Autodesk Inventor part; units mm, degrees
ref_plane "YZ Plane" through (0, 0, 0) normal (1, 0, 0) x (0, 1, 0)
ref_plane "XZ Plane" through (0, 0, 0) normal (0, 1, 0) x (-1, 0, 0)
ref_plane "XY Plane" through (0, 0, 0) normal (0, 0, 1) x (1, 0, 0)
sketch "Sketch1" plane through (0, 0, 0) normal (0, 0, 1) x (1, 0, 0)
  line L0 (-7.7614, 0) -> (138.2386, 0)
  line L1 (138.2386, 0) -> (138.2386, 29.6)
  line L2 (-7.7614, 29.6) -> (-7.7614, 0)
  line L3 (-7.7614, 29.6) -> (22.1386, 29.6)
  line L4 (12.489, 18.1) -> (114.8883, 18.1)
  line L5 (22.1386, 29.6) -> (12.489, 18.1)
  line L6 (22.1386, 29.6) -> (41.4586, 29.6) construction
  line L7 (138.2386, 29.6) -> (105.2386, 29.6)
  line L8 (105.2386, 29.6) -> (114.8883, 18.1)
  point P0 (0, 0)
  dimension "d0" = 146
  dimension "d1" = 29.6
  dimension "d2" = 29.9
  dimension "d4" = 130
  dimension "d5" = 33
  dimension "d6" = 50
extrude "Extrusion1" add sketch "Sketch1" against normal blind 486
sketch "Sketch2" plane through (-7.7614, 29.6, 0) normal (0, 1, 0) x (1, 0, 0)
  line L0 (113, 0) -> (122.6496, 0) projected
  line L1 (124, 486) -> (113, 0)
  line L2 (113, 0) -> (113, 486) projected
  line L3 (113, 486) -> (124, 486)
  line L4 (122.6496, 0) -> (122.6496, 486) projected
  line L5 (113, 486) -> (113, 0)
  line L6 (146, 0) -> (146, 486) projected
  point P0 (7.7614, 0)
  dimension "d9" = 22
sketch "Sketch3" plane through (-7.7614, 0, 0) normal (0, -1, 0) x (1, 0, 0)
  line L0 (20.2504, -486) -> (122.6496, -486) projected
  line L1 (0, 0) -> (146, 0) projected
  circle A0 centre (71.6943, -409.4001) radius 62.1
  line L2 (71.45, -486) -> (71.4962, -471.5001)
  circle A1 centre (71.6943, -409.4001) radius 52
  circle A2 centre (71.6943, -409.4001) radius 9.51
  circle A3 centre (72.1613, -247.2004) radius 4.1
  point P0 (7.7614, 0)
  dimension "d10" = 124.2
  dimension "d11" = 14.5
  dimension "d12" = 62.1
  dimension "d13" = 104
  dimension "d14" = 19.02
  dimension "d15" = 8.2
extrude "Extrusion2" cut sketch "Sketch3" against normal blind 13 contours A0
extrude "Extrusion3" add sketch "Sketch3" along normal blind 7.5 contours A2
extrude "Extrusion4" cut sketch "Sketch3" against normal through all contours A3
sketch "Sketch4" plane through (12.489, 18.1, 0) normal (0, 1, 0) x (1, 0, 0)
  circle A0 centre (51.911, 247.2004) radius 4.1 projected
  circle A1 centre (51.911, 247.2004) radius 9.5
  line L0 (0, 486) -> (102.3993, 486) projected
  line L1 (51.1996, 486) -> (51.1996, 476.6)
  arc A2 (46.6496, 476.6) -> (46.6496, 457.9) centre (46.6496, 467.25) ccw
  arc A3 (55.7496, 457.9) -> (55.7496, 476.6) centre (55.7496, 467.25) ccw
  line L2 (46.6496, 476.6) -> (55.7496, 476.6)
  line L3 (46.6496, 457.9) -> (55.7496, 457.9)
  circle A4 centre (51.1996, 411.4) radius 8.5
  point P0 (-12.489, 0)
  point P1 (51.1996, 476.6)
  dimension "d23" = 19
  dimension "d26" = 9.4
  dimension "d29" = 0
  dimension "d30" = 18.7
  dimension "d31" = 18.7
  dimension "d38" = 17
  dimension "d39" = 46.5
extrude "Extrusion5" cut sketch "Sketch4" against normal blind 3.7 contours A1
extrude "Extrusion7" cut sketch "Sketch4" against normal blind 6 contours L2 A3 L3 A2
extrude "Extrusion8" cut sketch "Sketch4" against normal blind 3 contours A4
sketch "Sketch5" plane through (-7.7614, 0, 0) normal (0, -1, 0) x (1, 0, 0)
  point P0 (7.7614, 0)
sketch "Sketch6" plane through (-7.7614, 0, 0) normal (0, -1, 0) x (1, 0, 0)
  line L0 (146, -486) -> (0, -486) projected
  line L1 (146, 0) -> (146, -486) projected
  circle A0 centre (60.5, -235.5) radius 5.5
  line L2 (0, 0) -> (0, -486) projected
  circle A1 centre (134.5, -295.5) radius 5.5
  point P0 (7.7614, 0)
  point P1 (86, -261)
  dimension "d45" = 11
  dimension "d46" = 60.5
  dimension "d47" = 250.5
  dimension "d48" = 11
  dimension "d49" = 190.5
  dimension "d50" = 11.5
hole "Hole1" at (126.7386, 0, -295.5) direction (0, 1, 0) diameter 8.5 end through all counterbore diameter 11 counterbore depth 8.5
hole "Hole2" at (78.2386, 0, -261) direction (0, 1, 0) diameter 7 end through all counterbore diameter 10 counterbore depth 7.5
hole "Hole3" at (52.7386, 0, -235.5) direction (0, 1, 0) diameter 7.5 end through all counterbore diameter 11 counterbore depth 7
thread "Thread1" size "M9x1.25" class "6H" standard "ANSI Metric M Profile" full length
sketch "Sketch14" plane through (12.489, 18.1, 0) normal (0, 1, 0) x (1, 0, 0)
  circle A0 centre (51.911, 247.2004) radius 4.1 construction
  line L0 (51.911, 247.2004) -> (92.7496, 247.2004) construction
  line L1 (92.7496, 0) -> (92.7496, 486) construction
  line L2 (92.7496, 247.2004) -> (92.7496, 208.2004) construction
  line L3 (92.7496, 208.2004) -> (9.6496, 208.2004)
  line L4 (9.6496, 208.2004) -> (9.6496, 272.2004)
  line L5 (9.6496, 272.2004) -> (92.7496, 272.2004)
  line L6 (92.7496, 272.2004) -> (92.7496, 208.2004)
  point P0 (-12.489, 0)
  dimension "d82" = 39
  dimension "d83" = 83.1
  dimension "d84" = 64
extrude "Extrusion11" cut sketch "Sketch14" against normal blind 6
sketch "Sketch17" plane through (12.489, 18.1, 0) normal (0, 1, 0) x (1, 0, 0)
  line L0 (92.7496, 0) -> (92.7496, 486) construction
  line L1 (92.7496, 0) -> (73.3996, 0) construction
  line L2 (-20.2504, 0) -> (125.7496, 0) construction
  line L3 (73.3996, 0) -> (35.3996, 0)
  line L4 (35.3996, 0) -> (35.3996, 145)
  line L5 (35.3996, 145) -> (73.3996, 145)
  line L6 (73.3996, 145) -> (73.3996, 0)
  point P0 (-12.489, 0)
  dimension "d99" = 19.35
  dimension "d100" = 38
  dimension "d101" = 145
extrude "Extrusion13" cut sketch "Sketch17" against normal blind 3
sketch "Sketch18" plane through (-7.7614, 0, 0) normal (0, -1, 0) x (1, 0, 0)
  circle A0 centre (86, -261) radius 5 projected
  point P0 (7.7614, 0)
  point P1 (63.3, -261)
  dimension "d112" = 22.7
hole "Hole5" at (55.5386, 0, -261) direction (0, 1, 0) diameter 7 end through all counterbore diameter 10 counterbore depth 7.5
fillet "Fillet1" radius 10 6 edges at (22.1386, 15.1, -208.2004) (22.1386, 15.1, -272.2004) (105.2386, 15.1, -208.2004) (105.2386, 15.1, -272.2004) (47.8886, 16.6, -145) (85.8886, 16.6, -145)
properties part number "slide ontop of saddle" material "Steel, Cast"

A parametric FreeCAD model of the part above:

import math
import FreeCAD as App
import Part
import Sketcher
Q = App.Units.Quantity


def edges_at(feature, points):
    """Names of the edges that pass closest to the given points."""
    edges = feature.Shape.Edges
    near = lambda p: min(range(len(edges)), key=lambda i: edges[i].distToShape(Part.Vertex(*p))[0])
    return sorted({f"Edge{near(p) + 1}" for p in points})


def add_polygon(sketch, points):
    """Adds a closed chain of lines whose ends are joined by coincident constraints."""
    first, n = sketch.GeometryCount, len(points)
    for a, b in zip(points, points[1:] + points[:1]):
        sketch.addGeometry(Part.LineSegment(App.Vector(*a, 0), App.Vector(*b, 0)), False)
    for i in range(n):
        sketch.addConstraint(Sketcher.Constraint("Coincident", first + i, 2, first + (i + 1) % n, 1))

doc = App.newDocument("Part")
body = doc.addObject("PartDesign::Body", "Body")

# Sketch on XY plane
sketch1 = doc.addObject("Sketcher::SketchObject", "Sketch")
body.addObject(sketch1)
sketch1.AttachmentSupport = (doc.XY_Plane, [""])
sketch1.MapMode = "FlatFace"
add_polygon(sketch1, [(-7.7614, 29.6), (-7.7614, 0), (138.2386, 0), (138.2386, 29.6), (105.2386, 29.6), (114.8883, 18.1), (12.489, 18.1), (22.1386, 29.6)])  # lines 0-7
sketch1.addConstraint(Sketcher.Constraint("Vertical", 0))
sketch1.addConstraint(Sketcher.Constraint("Horizontal", 1))
sketch1.addConstraint(Sketcher.Constraint("Vertical", 2))
sketch1.addConstraint(Sketcher.Constraint("Horizontal", 3))
sketch1.addConstraint(Sketcher.Constraint("Horizontal", 5))
sketch1.addConstraint(Sketcher.Constraint("Horizontal", 7))
sketch1.addConstraint(Sketcher.Constraint("PointOnObject", 0, 2, -1))
sketch1.addConstraint(Sketcher.Constraint("Horizontal", 3, 2, 6, 2))
sketch1.addConstraint(Sketcher.Constraint("Equal", 4, 6))
sketch1.addConstraint(Sketcher.Constraint("DistanceX", 1, 1, 1, 2, 146.0))
sketch1.addConstraint(Sketcher.Constraint("DistanceX", 3, 2, 3, 1, 33.0))
sketch1.addConstraint(Sketcher.Constraint("Angle", 4, Q("-49.9998 deg")))
sketch1.addConstraint(Sketcher.Constraint("DistanceX", 7, 2, 7, 1, 29.9))
sketch1.addConstraint(Sketcher.Constraint("DistanceY", 0, 2, 0, 1, 29.6))
sketch1.addConstraint(Sketcher.Constraint("DistanceY", -1, 1, 4, 2, 18.1))
sketch1.addConstraint(Sketcher.Constraint("DistanceX", -1, 1, 5, 2, 12.489))
pad1 = doc.addObject("PartDesign::Pad", "Pad")
body.addObject(pad1)
pad1.Profile = sketch1
pad1.Length = 486
pad1.Reversed = True

# Sketch on XZ plane
sketch2 = doc.addObject("Sketcher::SketchObject", "Sketch001")
body.addObject(sketch2)
sketch2.AttachmentSupport = (doc.XZ_Plane, [""])
sketch2.MapMode = "FlatFace"
sketch2.addGeometry(Part.Circle(App.Vector(63.9329, -409.4001, 0), App.Vector(0, 0, 1), 62.1), False)
sketch2.addGeometry(Part.Circle(App.Vector(63.9329, -409.4001, 0), App.Vector(0, 0, 1), 52), False)
sketch2.addConstraint(Sketcher.Constraint("Coincident", 1, 3, 0, 3))
sketch2.addConstraint(Sketcher.Constraint("Diameter", 1, 104.0))
sketch2.addConstraint(Sketcher.Constraint("Diameter", 0, 124.2))
sketch2.addConstraint(Sketcher.Constraint("DistanceY", 0, 3, -1, 1, 409.4))
sketch2.addConstraint(Sketcher.Constraint("DistanceX", -1, 1, 0, 3, 63.933))
pocket1 = doc.addObject("PartDesign::Pocket", "Pocket")
body.addObject(pocket1)
pocket1.Profile = sketch2
pocket1.Length = 13

# Sketch on XZ plane
sketch3 = doc.addObject("Sketcher::SketchObject", "Sketch002")
body.addObject(sketch3)
sketch3.AttachmentSupport = (doc.XZ_Plane, [""])
sketch3.MapMode = "FlatFace"
sketch3.addGeometry(Part.Circle(App.Vector(63.9329, -409.4001, 0), App.Vector(0, 0, 1), 9.51), False)
sketch3.addConstraint(Sketcher.Constraint("Diameter", 0, 19.02))
sketch3.addConstraint(Sketcher.Constraint("DistanceY", 0, 3, -1, 1, 409.4))
sketch3.addConstraint(Sketcher.Constraint("DistanceX", -1, 1, 0, 3, 63.933))
pad2 = doc.addObject("PartDesign::Pad", "Pad001")
body.addObject(pad2)
pad2.Profile = sketch3
pad2.Length = 7.5

# Sketch on XZ plane
sketch4 = doc.addObject("Sketcher::SketchObject", "Sketch003")
body.addObject(sketch4)
sketch4.AttachmentSupport = (doc.XZ_Plane, [""])
sketch4.MapMode = "FlatFace"
sketch4.addGeometry(Part.Circle(App.Vector(64.3999, -247.2004, 0), App.Vector(0, 0, 1), 4.1), False)
sketch4.addConstraint(Sketcher.Constraint("Diameter", 0, 8.2))
sketch4.addConstraint(Sketcher.Constraint("DistanceX", -1, 1, 0, 3, 64.4))
sketch4.addConstraint(Sketcher.Constraint("DistanceY", 0, 3, -1, 1, 247.2004))
pocket2 = doc.addObject("PartDesign::Pocket", "Pocket001")
body.addObject(pocket2)
pocket2.Profile = sketch4
pocket2.Type = "ThroughAll"

# Sketch on XZ plane
sketch5 = doc.addObject("Sketcher::SketchObject", "Sketch004")
body.addObject(sketch5)
sketch5.AttachmentSupport = (doc.XZ_Plane, [""])
sketch5.MapMode = "FlatFace"
sketch5.AttachmentOffset = App.Placement(App.Vector(0, 0, -18.1), App.Rotation())
sketch5.addGeometry(Part.Circle(App.Vector(64.4, -247.2004, 0), App.Vector(0, 0, 1), 9.5), False)
sketch5.addGeometry(Part.Circle(App.Vector(64.4, -247.2004, 0), App.Vector(0, 0, 1), 4.1), False)
sketch5.addConstraint(Sketcher.Constraint("Coincident", 1, 3, 0, 3))
sketch5.addConstraint(Sketcher.Constraint("Diameter", 0, 19.0))
sketch5.addConstraint(Sketcher.Constraint("Diameter", 1, 8.2))
sketch5.addConstraint(Sketcher.Constraint("DistanceX", -1, 1, 0, 3, 64.4))
sketch5.addConstraint(Sketcher.Constraint("DistanceY", 0, 3, -1, 1, 247.2004))
pocket3 = doc.addObject("PartDesign::Pocket", "Pocket002")
body.addObject(pocket3)
pocket3.Profile = sketch5
pocket3.Length = 3.7
pocket3.Reversed = True

# Sketch on XZ plane
sketch6 = doc.addObject("Sketcher::SketchObject", "Sketch005")
body.addObject(sketch6)
sketch6.AttachmentSupport = (doc.XZ_Plane, [""])
sketch6.MapMode = "FlatFace"
sketch6.AttachmentOffset = App.Placement(App.Vector(0, 0, -18.1), App.Rotation())
sketch6.addGeometry(Part.LineSegment(App.Vector(68.2386, -476.6, 0), App.Vector(59.1386, -476.6, 0)), False)
sketch6.addGeometry(Part.ArcOfCircle(Part.Circle(App.Vector(59.1386, -467.25, 0), App.Vector(0, 0, 1), 9.35), math.radians(90), math.radians(270)), False)
sketch6.addGeometry(Part.LineSegment(App.Vector(59.1386, -457.9, 0), App.Vector(68.2386, -457.9, 0)), False)
sketch6.addGeometry(Part.ArcOfCircle(Part.Circle(App.Vector(68.2386, -467.25, 0), App.Vector(0, 0, 1), 9.35), math.radians(-90), math.radians(90)), False)
sketch6.addConstraint(Sketcher.Constraint("Tangent", 0, 2, 1, 2))
sketch6.addConstraint(Sketcher.Constraint("Tangent", 1, 1, 2, 1))
sketch6.addConstraint(Sketcher.Constraint("Tangent", 2, 2, 3, 2))
sketch6.addConstraint(Sketcher.Constraint("Tangent", 3, 1, 0, 1))
sketch6.addConstraint(Sketcher.Constraint("Horizontal", 0))
sketch6.addConstraint(Sketcher.Constraint("Horizontal", 2))
sketch6.addConstraint(Sketcher.Constraint("Radius", 1, 9.35))
sketch6.addConstraint(Sketcher.Constraint("DistanceX", 0, 2, 0, 1, 9.1))
sketch6.addConstraint(Sketcher.Constraint("DistanceY", 0, 2, -1, 1, 476.6))
sketch6.addConstraint(Sketcher.Constraint("DistanceX", -1, 1, 1, 3, 59.1386))
pocket4 = doc.addObject("PartDesign::Pocket", "Pocket003")
body.addObject(pocket4)
pocket4.Profile = sketch6
pocket4.Length = 6
pocket4.Reversed = True

# Sketch on XZ plane
sketch7 = doc.addObject("Sketcher::SketchObject", "Sketch006")
body.addObject(sketch7)
sketch7.AttachmentSupport = (doc.XZ_Plane, [""])
sketch7.MapMode = "FlatFace"
sketch7.AttachmentOffset = App.Placement(App.Vector(0, 0, -18.1), App.Rotation())
sketch7.addGeometry(Part.Circle(App.Vector(63.6886, -411.4, 0), App.Vector(0, 0, 1), 8.5), False)
sketch7.addConstraint(Sketcher.Constraint("Diameter", 0, 17.0))
sketch7.addConstraint(Sketcher.Constraint("DistanceY", 0, 3, -1, 1, 411.4))
sketch7.addConstraint(Sketcher.Constraint("DistanceX", -1, 1, 0, 3, 63.6886))
pocket5 = doc.addObject("PartDesign::Pocket", "Pocket004")
body.addObject(pocket5)
pocket5.Profile = sketch7
pocket5.Length = 3
pocket5.Reversed = True

# Sketch on XZ plane
sketch8 = doc.addObject("Sketcher::SketchObject", "Sketch007")
body.addObject(sketch8)
sketch8.AttachmentSupport = (doc.XZ_Plane, [""])
sketch8.MapMode = "FlatFace"
sketch8.addGeometry(Part.Circle(App.Vector(126.7386, -295.5, 0), App.Vector(0, 0, 1), 4.25), False)
sketch8.addConstraint(Sketcher.Constraint("Diameter", 0, 8.5))
sketch8.addConstraint(Sketcher.Constraint("DistanceY", 0, 3, -1, 1, 295.5))
sketch8.addConstraint(Sketcher.Constraint("DistanceX", -1, 1, 0, 3, 126.7386))
doc.recompute()
hole = doc.addObject("PartDesign::Hole", "Hole")
body.addObject(hole)
hole.Profile = sketch8
hole.ThreadType = "None"
hole.Diameter = 8.5
hole.DepthType = "ThroughAll"
hole.HoleCutType = "Counterbore"
hole.HoleCutDiameter = 11
hole.HoleCutDepth = 8.5

# Sketch on XZ plane
sketch9 = doc.addObject("Sketcher::SketchObject", "Sketch008")
body.addObject(sketch9)
sketch9.AttachmentSupport = (doc.XZ_Plane, [""])
sketch9.MapMode = "FlatFace"
sketch9.addGeometry(Part.Circle(App.Vector(78.2386, -261, 0), App.Vector(0, 0, 1), 3.5), False)
sketch9.addConstraint(Sketcher.Constraint("Diameter", 0, 7.0))
sketch9.addConstraint(Sketcher.Constraint("DistanceY", 0, 3, -1, 1, 261.0))
sketch9.addConstraint(Sketcher.Constraint("DistanceX", -1, 1, 0, 3, 78.2386))
doc.recompute()
hole2 = doc.addObject("PartDesign::Hole", "Hole001")
body.addObject(hole2)
hole2.Profile = sketch9
hole2.ThreadType = "None"
hole2.Diameter = 7
hole2.DepthType = "ThroughAll"
hole2.HoleCutType = "Counterbore"
hole2.HoleCutDiameter = 10
hole2.HoleCutDepth = 7.5

# Sketch on XZ plane
sketch10 = doc.addObject("Sketcher::SketchObject", "Sketch009")
body.addObject(sketch10)
sketch10.AttachmentSupport = (doc.XZ_Plane, [""])
sketch10.MapMode = "FlatFace"
sketch10.addGeometry(Part.Circle(App.Vector(52.7386, -235.5, 0), App.Vector(0, 0, 1), 3.75), False)
sketch10.addConstraint(Sketcher.Constraint("Diameter", 0, 7.5))
sketch10.addConstraint(Sketcher.Constraint("DistanceY", 0, 3, -1, 1, 235.5))
sketch10.addConstraint(Sketcher.Constraint("DistanceX", -1, 1, 0, 3, 52.7386))
doc.recompute()
hole3 = doc.addObject("PartDesign::Hole", "Hole002")
body.addObject(hole3)
hole3.Profile = sketch10
hole3.ThreadType = "None"
hole3.Diameter = 7.5
hole3.DepthType = "ThroughAll"
hole3.HoleCutType = "Counterbore"
hole3.HoleCutDiameter = 11
hole3.HoleCutDepth = 7

# Sketch on XZ plane
sketch11 = doc.addObject("Sketcher::SketchObject", "Sketch010")
body.addObject(sketch11)
sketch11.AttachmentSupport = (doc.XZ_Plane, [""])
sketch11.MapMode = "FlatFace"
sketch11.AttachmentOffset = App.Placement(App.Vector(0, 0, -18.1), App.Rotation())
add_polygon(sketch11, [(22.1386, -208.2004), (105.2386, -208.2004), (105.2386, -272.2004), (22.1386, -272.2004)])  # lines 0-3
sketch11.addConstraint(Sketcher.Constraint("Horizontal", 0))
sketch11.addConstraint(Sketcher.Constraint("Vertical", 1))
sketch11.addConstraint(Sketcher.Constraint("Horizontal", 2))
sketch11.addConstraint(Sketcher.Constraint("Vertical", 3))
sketch11.addConstraint(Sketcher.Constraint("DistanceY", 1, 2, 1, 1, 64.0))
sketch11.addConstraint(Sketcher.Constraint("DistanceX", 0, 1, 0, 2, 83.1))
sketch11.addConstraint(Sketcher.Constraint("DistanceX", -1, 1, 0, 2, 105.2386))
sketch11.addConstraint(Sketcher.Constraint("DistanceY", 0, 2, -1, 1, 208.2004))
pocket6 = doc.addObject("PartDesign::Pocket", "Pocket005")
body.addObject(pocket6)
pocket6.Profile = sketch11
pocket6.Length = 6
pocket6.Reversed = True

# Sketch on XZ plane
sketch12 = doc.addObject("Sketcher::SketchObject", "Sketch011")
body.addObject(sketch12)
sketch12.AttachmentSupport = (doc.XZ_Plane, [""])
sketch12.MapMode = "FlatFace"
sketch12.AttachmentOffset = App.Placement(App.Vector(0, 0, -18.1), App.Rotation())
add_polygon(sketch12, [(47.8886, 0), (85.8886, 0), (85.8886, -145), (47.8886, -145)])  # lines 0-3
sketch12.addConstraint(Sketcher.Constraint("Horizontal", 0))
sketch12.addConstraint(Sketcher.Constraint("Vertical", 1))
sketch12.addConstraint(Sketcher.Constraint("Horizontal", 2))
sketch12.addConstraint(Sketcher.Constraint("Vertical", 3))
sketch12.addConstraint(Sketcher.Constraint("PointOnObject", 0, 2, -1))
sketch12.addConstraint(Sketcher.Constraint("DistanceX", 0, 1, 0, 2, 38.0))
sketch12.addConstraint(Sketcher.Constraint("DistanceY", 1, 2, 1, 1, 145.0))
sketch12.addConstraint(Sketcher.Constraint("DistanceX", -1, 1, 0, 2, 85.8886))
pocket7 = doc.addObject("PartDesign::Pocket", "Pocket006")
body.addObject(pocket7)
pocket7.Profile = sketch12
pocket7.Length = 3
pocket7.Reversed = True

# Sketch on XZ plane
sketch13 = doc.addObject("Sketcher::SketchObject", "Sketch012")
body.addObject(sketch13)
sketch13.AttachmentSupport = (doc.XZ_Plane, [""])
sketch13.MapMode = "FlatFace"
sketch13.addGeometry(Part.Circle(App.Vector(55.5386, -261, 0), App.Vector(0, 0, 1), 3.5), False)
sketch13.addConstraint(Sketcher.Constraint("Diameter", 0, 7.0))
sketch13.addConstraint(Sketcher.Constraint("DistanceY", 0, 3, -1, 1, 261.0))
sketch13.addConstraint(Sketcher.Constraint("DistanceX", -1, 1, 0, 3, 55.5386))
doc.recompute()
hole4 = doc.addObject("PartDesign::Hole", "Hole003")
body.addObject(hole4)
hole4.Profile = sketch13
hole4.ThreadType = "None"
hole4.Diameter = 7
hole4.DepthType = "ThroughAll"
hole4.HoleCutType = "Counterbore"
hole4.HoleCutDiameter = 10
hole4.HoleCutDepth = 7.5
doc.recompute()

fillet = doc.addObject("PartDesign::Fillet", "Fillet")
body.addObject(fillet)
fillet.Base = (hole4, edges_at(hole4, [
    (22.139, 15.1, -208.2),
    (22.139, 15.1, -272.2),
    (105.239, 15.1, -208.2),
    (105.239, 15.1, -272.2),
    (47.889, 16.6, -145),
    (85.889, 16.6, -145),
]))
fillet.Radius = 10

doc.recompute()
